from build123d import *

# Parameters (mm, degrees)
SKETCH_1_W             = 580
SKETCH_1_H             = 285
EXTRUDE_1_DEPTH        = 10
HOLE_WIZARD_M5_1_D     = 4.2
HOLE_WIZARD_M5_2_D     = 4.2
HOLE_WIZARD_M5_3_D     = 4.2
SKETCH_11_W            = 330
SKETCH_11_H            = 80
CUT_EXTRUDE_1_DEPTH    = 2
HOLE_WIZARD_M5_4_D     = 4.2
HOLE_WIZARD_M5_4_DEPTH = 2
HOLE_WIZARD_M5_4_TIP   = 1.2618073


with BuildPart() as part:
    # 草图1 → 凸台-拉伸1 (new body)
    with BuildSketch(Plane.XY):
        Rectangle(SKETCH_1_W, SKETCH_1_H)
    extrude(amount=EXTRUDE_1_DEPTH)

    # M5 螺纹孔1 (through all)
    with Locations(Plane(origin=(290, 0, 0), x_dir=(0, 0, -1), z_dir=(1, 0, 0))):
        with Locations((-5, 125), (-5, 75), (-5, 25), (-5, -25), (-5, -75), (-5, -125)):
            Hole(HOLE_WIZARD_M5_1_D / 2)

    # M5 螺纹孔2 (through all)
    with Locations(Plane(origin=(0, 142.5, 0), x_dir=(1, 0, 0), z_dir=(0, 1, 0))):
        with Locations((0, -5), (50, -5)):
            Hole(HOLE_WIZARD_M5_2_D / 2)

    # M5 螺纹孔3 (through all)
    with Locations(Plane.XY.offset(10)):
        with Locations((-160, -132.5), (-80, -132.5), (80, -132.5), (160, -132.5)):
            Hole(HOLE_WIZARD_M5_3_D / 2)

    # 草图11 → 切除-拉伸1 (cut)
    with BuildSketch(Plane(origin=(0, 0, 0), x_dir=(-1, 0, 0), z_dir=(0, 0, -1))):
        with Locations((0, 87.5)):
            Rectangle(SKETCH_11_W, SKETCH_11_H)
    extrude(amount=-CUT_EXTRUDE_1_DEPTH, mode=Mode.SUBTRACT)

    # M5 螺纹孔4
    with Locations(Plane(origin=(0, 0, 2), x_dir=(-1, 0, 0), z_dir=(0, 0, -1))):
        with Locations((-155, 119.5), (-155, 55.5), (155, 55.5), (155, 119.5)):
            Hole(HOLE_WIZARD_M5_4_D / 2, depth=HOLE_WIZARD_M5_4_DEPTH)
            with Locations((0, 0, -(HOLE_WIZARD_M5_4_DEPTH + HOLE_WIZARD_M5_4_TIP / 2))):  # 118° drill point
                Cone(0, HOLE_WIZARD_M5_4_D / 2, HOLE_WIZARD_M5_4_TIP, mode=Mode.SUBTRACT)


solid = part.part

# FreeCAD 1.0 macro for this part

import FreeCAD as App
import Part
import Sketcher

V = App.Vector


def add_polygon(sketch, points):
    """Adds a closed chain of lines whose ends are joined by coincident constraints."""
    first, n = sketch.GeometryCount, len(points)
    for a, b in zip(points, points[1:] + points[:1]):
        sketch.addGeometry(Part.LineSegment(App.Vector(*a, 0), App.Vector(*b, 0)), False)
    for i in range(n):
        sketch.addConstraint(Sketcher.Constraint("Coincident", first + i, 2, first + (i + 1) % n, 1))

doc = App.newDocument("Part")
body = doc.addObject("PartDesign::Body", "Body")

# Sketch on XY plane
sketch1 = body.newObject("Sketcher::SketchObject", "Sketch")
sketch1.AttachmentSupport = (doc.getObject("XY_Plane"), [""])
sketch1.MapMode = "FlatFace"
add_polygon(sketch1, [(-290, 142), (-290, -142), (290, -142), (290, 142)])  # lines 0-3
sketch1.addConstraint([
    Sketcher.Constraint("Vertical", 0),
    Sketcher.Constraint("Horizontal", 1),
    Sketcher.Constraint("Vertical", 2),
    Sketcher.Constraint("Horizontal", 3),
    Sketcher.Constraint("Symmetric", 0, 2, 2, 2, -1, 1),
    Sketcher.Constraint("DistanceX", 1, 1, 1, 2, 580.0),
    Sketcher.Constraint("DistanceY", 0, 2, 0, 1, 285.0),
])
pad1 = body.newObject("PartDesign::Pad", "Pad")
pad1.Profile = sketch1
pad1.Length = 10

# Sketch on YZ plane
sketch2 = body.newObject("Sketcher::SketchObject", "Sketch001")
sketch2.AttachmentSupport = (doc.getObject("YZ_Plane"), [""])
sketch2.MapMode = "FlatFace"
sketch2.AttachmentOffset = App.Placement(V(0, 0, 290), App.Rotation())
sketch2.addGeometry([
    Part.Circle(V(125, 5, 0), V(0, 0, 1), 2.1),  # 0
    Part.Circle(V(75, 5, 0), V(0, 0, 1), 2.1),  # 1
    Part.Circle(V(25, 5, 0), V(0, 0, 1), 2.1),  # 2
    Part.Circle(V(-25, 5, 0), V(0, 0, 1), 2.1),  # 3
    Part.Circle(V(-75, 5, 0), V(0, 0, 1), 2.1),  # 4
    Part.Circle(V(-125, 5, 0), V(0, 0, 1), 2.1),  # 5
], False)
sketch2.addConstraint([
    Sketcher.Constraint("Equal", 0, 1),
    Sketcher.Constraint("Equal", 1, 2),
    Sketcher.Constraint("Equal", 2, 3),
    Sketcher.Constraint("Equal", 3, 4),
    Sketcher.Constraint("Equal", 4, 5),
    Sketcher.Constraint("Symmetric", 2, 3, 3, 3, -2),
    Sketcher.Constraint("Symmetric", 1, 3, 4, 3, -2),
    Sketcher.Constraint("Symmetric", 0, 3, 5, 3, -2),
    Sketcher.Constraint("Horizontal", 0, 3, 1, 3),
    Sketcher.Constraint("Horizontal", 1, 3, 2, 3),
    Sketcher.Constraint("Diameter", 0, 4.2),
    Sketcher.Constraint("DistanceX", -1, 1, 0, 3, 125.0),
    Sketcher.Constraint("DistanceY", -1, 1, 0, 3, 5.0),
    Sketcher.Constraint("DistanceX", -1, 1, 1, 3, 75.0),
    Sketcher.Constraint("DistanceX", -1, 1, 2, 3, 25.0),
])
doc.recompute()
hole = body.newObject("PartDesign::Hole", "Hole")
hole.Profile = sketch2
hole.ThreadType = "None"
hole.Diameter = 4.2
hole.DepthType = "ThroughAll"

# Sketch on XZ plane
sketch3 = body.newObject("Sketcher::SketchObject", "Sketch002")
sketch3.AttachmentSupport = (doc.getObject("XZ_Plane"), [""])
sketch3.MapMode = "FlatFace"
sketch3.AttachmentOffset = App.Placement(V(0, 0, -142.5), App.Rotation())
sketch3.addGeometry([
    Part.Circle(V(0, 5, 0), V(0, 0, 1), 2.1),
    Part.Circle(V(50, 5, 0), V(0, 0, 1), 2.1),
], False)
sketch3.addConstraint([
    Sketcher.Constraint("Equal", 0, 1),
    Sketcher.Constraint("PointOnObject", 0, 3, -2),
    Sketcher.Constraint("Horizontal", 0, 3, 1, 3),
    Sketcher.Constraint("Diameter", 0, 4.2),
    Sketcher.Constraint("DistanceY", -1, 1, 0, 3, 5.0),
    Sketcher.Constraint("DistanceX", -1, 1, 1, 3, 50.0),
])
doc.recompute()
hole2 = body.newObject("PartDesign::Hole", "Hole001")
hole2.Profile = sketch3
hole2.ThreadType = "None"
hole2.Diameter = 4.2
hole2.DepthType = "ThroughAll"
hole2.Reversed = True

# Sketch on XY plane
sketch4 = body.newObject("Sketcher::SketchObject", "Sketch003")
sketch4.AttachmentSupport = (doc.getObject("XY_Plane"), [""])
sketch4.MapMode = "FlatFace"
sketch4.AttachmentOffset = App.Placement(V(0, 0, 10), App.Rotation())
sketch4.addGeometry([
    Part.Circle(V(-160, -132.5, 0), V(0, 0, 1), 2.1),
    Part.Circle(V(-80, -132.5, 0), V(0, 0, 1), 2.1),
    Part.Circle(V(80, -132.5, 0), V(0, 0, 1), 2.1),
    Part.Circle(V(160, -132.5, 0), V(0, 0, 1), 2.1),
], False)
sketch4.addConstraint([
    Sketcher.Constraint("Equal", 0, 1),
    Sketcher.Constraint("Equal", 1, 2),
    Sketcher.Constraint("Equal", 2, 3),
    Sketcher.Constraint("Symmetric", 1, 3, 2, 3, -2),
    Sketcher.Constraint("Symmetric", 0, 3, 3, 3, -2),
    Sketcher.Constraint("Horizontal", 0, 3, 1, 3),
    Sketcher.Constraint("Diameter", 0, 4.2),
    Sketcher.Constraint("DistanceX", 0, 3, -1, 1, 160.0),
    Sketcher.Constraint("DistanceX", 1, 3, -1, 1, 80.0),
    Sketcher.Constraint("DistanceY", 0, 3, -1, 1, 132.5),
])
doc.recompute()
hole3 = body.newObject("PartDesign::Hole", "Hole002")
hole3.Profile = sketch4
hole3.ThreadType = "None"
hole3.Diameter = 4.2
hole3.DepthType = "ThroughAll"

# Sketch on XY plane
sketch5 = body.newObject("Sketcher::SketchObject", "Sketch004")
sketch5.AttachmentSupport = (doc.getObject("XY_Plane"), [""])
sketch5.MapMode = "FlatFace"
add_polygon(sketch5, [(165, 128), (165, 48), (-165, 48), (-165, 128)])  # lines 0-3
sketch5.addConstraint([
    Sketcher.Constraint("Vertical", 0),
    Sketcher.Constraint("Horizontal", 1),
    Sketcher.Constraint("Vertical", 2),
    Sketcher.Constraint("Horizontal", 3),
    Sketcher.Constraint("DistanceX", 1, 2, 1, 1, 330.0),
    Sketcher.Constraint("DistanceY", 0, 2, 0, 1, 80.0),
    Sketcher.Constraint("DistanceX", -1, 1, 0, 2, 165.0),
    Sketcher.Constraint("DistanceY", -1, 1, 0, 2, 47.5),
])
pocket1 = body.newObject("PartDesign::Pocket", "Pocket")
pocket1.Profile = sketch5
pocket1.Length = 2
pocket1.Reversed = True

# Sketch on XY plane
sketch6 = body.newObject("Sketcher::SketchObject", "Sketch005")
sketch6.AttachmentSupport = (doc.getObject("XY_Plane"), [""])
sketch6.MapMode = "FlatFace"
sketch6.AttachmentOffset = App.Placement(V(0, 0, 2), App.Rotation())
sketch6.addGeometry([
    Part.Circle(V(155, 119.5, 0), V(0, 0, 1), 2.1),
    Part.Circle(V(155, 55.5, 0), V(0, 0, 1), 2.1),
    Part.Circle(V(-155, 55.5, 0), V(0, 0, 1), 2.1),
    Part.Circle(V(-155, 119.5, 0), V(0, 0, 1), 2.1),
], False)
sketch6.addConstraint([
    Sketcher.Constraint("Equal", 0, 1),
    Sketcher.Constraint("Equal", 1, 2),
    Sketcher.Constraint("Equal", 2, 3),
    Sketcher.Constraint("Symmetric", 1, 3, 2, 3, -2),
    Sketcher.Constraint("Symmetric", 0, 3, 3, 3, -2),
    Sketcher.Constraint("Vertical", 0, 3, 1, 3),
    Sketcher.Constraint("Diameter", 0, 4.2),
    Sketcher.Constraint("DistanceX", -1, 1, 0, 3, 155.0),
    Sketcher.Constraint("DistanceY", 1, 3, 0, 3, 64.0),
    Sketcher.Constraint("DistanceY", -1, 1, 0, 3, 119.5),
])
doc.recompute()
hole4 = body.newObject("PartDesign::Hole", "Hole003")
hole4.Profile = sketch6
hole4.ThreadType = "None"
hole4.Diameter = 4.2
hole4.DepthType = "Dimension"
hole4.Depth = 2
hole4.DrillPoint = "Angled"
hole4.DrillPointAngle = 118
hole4.Reversed = True

doc.recompute()
